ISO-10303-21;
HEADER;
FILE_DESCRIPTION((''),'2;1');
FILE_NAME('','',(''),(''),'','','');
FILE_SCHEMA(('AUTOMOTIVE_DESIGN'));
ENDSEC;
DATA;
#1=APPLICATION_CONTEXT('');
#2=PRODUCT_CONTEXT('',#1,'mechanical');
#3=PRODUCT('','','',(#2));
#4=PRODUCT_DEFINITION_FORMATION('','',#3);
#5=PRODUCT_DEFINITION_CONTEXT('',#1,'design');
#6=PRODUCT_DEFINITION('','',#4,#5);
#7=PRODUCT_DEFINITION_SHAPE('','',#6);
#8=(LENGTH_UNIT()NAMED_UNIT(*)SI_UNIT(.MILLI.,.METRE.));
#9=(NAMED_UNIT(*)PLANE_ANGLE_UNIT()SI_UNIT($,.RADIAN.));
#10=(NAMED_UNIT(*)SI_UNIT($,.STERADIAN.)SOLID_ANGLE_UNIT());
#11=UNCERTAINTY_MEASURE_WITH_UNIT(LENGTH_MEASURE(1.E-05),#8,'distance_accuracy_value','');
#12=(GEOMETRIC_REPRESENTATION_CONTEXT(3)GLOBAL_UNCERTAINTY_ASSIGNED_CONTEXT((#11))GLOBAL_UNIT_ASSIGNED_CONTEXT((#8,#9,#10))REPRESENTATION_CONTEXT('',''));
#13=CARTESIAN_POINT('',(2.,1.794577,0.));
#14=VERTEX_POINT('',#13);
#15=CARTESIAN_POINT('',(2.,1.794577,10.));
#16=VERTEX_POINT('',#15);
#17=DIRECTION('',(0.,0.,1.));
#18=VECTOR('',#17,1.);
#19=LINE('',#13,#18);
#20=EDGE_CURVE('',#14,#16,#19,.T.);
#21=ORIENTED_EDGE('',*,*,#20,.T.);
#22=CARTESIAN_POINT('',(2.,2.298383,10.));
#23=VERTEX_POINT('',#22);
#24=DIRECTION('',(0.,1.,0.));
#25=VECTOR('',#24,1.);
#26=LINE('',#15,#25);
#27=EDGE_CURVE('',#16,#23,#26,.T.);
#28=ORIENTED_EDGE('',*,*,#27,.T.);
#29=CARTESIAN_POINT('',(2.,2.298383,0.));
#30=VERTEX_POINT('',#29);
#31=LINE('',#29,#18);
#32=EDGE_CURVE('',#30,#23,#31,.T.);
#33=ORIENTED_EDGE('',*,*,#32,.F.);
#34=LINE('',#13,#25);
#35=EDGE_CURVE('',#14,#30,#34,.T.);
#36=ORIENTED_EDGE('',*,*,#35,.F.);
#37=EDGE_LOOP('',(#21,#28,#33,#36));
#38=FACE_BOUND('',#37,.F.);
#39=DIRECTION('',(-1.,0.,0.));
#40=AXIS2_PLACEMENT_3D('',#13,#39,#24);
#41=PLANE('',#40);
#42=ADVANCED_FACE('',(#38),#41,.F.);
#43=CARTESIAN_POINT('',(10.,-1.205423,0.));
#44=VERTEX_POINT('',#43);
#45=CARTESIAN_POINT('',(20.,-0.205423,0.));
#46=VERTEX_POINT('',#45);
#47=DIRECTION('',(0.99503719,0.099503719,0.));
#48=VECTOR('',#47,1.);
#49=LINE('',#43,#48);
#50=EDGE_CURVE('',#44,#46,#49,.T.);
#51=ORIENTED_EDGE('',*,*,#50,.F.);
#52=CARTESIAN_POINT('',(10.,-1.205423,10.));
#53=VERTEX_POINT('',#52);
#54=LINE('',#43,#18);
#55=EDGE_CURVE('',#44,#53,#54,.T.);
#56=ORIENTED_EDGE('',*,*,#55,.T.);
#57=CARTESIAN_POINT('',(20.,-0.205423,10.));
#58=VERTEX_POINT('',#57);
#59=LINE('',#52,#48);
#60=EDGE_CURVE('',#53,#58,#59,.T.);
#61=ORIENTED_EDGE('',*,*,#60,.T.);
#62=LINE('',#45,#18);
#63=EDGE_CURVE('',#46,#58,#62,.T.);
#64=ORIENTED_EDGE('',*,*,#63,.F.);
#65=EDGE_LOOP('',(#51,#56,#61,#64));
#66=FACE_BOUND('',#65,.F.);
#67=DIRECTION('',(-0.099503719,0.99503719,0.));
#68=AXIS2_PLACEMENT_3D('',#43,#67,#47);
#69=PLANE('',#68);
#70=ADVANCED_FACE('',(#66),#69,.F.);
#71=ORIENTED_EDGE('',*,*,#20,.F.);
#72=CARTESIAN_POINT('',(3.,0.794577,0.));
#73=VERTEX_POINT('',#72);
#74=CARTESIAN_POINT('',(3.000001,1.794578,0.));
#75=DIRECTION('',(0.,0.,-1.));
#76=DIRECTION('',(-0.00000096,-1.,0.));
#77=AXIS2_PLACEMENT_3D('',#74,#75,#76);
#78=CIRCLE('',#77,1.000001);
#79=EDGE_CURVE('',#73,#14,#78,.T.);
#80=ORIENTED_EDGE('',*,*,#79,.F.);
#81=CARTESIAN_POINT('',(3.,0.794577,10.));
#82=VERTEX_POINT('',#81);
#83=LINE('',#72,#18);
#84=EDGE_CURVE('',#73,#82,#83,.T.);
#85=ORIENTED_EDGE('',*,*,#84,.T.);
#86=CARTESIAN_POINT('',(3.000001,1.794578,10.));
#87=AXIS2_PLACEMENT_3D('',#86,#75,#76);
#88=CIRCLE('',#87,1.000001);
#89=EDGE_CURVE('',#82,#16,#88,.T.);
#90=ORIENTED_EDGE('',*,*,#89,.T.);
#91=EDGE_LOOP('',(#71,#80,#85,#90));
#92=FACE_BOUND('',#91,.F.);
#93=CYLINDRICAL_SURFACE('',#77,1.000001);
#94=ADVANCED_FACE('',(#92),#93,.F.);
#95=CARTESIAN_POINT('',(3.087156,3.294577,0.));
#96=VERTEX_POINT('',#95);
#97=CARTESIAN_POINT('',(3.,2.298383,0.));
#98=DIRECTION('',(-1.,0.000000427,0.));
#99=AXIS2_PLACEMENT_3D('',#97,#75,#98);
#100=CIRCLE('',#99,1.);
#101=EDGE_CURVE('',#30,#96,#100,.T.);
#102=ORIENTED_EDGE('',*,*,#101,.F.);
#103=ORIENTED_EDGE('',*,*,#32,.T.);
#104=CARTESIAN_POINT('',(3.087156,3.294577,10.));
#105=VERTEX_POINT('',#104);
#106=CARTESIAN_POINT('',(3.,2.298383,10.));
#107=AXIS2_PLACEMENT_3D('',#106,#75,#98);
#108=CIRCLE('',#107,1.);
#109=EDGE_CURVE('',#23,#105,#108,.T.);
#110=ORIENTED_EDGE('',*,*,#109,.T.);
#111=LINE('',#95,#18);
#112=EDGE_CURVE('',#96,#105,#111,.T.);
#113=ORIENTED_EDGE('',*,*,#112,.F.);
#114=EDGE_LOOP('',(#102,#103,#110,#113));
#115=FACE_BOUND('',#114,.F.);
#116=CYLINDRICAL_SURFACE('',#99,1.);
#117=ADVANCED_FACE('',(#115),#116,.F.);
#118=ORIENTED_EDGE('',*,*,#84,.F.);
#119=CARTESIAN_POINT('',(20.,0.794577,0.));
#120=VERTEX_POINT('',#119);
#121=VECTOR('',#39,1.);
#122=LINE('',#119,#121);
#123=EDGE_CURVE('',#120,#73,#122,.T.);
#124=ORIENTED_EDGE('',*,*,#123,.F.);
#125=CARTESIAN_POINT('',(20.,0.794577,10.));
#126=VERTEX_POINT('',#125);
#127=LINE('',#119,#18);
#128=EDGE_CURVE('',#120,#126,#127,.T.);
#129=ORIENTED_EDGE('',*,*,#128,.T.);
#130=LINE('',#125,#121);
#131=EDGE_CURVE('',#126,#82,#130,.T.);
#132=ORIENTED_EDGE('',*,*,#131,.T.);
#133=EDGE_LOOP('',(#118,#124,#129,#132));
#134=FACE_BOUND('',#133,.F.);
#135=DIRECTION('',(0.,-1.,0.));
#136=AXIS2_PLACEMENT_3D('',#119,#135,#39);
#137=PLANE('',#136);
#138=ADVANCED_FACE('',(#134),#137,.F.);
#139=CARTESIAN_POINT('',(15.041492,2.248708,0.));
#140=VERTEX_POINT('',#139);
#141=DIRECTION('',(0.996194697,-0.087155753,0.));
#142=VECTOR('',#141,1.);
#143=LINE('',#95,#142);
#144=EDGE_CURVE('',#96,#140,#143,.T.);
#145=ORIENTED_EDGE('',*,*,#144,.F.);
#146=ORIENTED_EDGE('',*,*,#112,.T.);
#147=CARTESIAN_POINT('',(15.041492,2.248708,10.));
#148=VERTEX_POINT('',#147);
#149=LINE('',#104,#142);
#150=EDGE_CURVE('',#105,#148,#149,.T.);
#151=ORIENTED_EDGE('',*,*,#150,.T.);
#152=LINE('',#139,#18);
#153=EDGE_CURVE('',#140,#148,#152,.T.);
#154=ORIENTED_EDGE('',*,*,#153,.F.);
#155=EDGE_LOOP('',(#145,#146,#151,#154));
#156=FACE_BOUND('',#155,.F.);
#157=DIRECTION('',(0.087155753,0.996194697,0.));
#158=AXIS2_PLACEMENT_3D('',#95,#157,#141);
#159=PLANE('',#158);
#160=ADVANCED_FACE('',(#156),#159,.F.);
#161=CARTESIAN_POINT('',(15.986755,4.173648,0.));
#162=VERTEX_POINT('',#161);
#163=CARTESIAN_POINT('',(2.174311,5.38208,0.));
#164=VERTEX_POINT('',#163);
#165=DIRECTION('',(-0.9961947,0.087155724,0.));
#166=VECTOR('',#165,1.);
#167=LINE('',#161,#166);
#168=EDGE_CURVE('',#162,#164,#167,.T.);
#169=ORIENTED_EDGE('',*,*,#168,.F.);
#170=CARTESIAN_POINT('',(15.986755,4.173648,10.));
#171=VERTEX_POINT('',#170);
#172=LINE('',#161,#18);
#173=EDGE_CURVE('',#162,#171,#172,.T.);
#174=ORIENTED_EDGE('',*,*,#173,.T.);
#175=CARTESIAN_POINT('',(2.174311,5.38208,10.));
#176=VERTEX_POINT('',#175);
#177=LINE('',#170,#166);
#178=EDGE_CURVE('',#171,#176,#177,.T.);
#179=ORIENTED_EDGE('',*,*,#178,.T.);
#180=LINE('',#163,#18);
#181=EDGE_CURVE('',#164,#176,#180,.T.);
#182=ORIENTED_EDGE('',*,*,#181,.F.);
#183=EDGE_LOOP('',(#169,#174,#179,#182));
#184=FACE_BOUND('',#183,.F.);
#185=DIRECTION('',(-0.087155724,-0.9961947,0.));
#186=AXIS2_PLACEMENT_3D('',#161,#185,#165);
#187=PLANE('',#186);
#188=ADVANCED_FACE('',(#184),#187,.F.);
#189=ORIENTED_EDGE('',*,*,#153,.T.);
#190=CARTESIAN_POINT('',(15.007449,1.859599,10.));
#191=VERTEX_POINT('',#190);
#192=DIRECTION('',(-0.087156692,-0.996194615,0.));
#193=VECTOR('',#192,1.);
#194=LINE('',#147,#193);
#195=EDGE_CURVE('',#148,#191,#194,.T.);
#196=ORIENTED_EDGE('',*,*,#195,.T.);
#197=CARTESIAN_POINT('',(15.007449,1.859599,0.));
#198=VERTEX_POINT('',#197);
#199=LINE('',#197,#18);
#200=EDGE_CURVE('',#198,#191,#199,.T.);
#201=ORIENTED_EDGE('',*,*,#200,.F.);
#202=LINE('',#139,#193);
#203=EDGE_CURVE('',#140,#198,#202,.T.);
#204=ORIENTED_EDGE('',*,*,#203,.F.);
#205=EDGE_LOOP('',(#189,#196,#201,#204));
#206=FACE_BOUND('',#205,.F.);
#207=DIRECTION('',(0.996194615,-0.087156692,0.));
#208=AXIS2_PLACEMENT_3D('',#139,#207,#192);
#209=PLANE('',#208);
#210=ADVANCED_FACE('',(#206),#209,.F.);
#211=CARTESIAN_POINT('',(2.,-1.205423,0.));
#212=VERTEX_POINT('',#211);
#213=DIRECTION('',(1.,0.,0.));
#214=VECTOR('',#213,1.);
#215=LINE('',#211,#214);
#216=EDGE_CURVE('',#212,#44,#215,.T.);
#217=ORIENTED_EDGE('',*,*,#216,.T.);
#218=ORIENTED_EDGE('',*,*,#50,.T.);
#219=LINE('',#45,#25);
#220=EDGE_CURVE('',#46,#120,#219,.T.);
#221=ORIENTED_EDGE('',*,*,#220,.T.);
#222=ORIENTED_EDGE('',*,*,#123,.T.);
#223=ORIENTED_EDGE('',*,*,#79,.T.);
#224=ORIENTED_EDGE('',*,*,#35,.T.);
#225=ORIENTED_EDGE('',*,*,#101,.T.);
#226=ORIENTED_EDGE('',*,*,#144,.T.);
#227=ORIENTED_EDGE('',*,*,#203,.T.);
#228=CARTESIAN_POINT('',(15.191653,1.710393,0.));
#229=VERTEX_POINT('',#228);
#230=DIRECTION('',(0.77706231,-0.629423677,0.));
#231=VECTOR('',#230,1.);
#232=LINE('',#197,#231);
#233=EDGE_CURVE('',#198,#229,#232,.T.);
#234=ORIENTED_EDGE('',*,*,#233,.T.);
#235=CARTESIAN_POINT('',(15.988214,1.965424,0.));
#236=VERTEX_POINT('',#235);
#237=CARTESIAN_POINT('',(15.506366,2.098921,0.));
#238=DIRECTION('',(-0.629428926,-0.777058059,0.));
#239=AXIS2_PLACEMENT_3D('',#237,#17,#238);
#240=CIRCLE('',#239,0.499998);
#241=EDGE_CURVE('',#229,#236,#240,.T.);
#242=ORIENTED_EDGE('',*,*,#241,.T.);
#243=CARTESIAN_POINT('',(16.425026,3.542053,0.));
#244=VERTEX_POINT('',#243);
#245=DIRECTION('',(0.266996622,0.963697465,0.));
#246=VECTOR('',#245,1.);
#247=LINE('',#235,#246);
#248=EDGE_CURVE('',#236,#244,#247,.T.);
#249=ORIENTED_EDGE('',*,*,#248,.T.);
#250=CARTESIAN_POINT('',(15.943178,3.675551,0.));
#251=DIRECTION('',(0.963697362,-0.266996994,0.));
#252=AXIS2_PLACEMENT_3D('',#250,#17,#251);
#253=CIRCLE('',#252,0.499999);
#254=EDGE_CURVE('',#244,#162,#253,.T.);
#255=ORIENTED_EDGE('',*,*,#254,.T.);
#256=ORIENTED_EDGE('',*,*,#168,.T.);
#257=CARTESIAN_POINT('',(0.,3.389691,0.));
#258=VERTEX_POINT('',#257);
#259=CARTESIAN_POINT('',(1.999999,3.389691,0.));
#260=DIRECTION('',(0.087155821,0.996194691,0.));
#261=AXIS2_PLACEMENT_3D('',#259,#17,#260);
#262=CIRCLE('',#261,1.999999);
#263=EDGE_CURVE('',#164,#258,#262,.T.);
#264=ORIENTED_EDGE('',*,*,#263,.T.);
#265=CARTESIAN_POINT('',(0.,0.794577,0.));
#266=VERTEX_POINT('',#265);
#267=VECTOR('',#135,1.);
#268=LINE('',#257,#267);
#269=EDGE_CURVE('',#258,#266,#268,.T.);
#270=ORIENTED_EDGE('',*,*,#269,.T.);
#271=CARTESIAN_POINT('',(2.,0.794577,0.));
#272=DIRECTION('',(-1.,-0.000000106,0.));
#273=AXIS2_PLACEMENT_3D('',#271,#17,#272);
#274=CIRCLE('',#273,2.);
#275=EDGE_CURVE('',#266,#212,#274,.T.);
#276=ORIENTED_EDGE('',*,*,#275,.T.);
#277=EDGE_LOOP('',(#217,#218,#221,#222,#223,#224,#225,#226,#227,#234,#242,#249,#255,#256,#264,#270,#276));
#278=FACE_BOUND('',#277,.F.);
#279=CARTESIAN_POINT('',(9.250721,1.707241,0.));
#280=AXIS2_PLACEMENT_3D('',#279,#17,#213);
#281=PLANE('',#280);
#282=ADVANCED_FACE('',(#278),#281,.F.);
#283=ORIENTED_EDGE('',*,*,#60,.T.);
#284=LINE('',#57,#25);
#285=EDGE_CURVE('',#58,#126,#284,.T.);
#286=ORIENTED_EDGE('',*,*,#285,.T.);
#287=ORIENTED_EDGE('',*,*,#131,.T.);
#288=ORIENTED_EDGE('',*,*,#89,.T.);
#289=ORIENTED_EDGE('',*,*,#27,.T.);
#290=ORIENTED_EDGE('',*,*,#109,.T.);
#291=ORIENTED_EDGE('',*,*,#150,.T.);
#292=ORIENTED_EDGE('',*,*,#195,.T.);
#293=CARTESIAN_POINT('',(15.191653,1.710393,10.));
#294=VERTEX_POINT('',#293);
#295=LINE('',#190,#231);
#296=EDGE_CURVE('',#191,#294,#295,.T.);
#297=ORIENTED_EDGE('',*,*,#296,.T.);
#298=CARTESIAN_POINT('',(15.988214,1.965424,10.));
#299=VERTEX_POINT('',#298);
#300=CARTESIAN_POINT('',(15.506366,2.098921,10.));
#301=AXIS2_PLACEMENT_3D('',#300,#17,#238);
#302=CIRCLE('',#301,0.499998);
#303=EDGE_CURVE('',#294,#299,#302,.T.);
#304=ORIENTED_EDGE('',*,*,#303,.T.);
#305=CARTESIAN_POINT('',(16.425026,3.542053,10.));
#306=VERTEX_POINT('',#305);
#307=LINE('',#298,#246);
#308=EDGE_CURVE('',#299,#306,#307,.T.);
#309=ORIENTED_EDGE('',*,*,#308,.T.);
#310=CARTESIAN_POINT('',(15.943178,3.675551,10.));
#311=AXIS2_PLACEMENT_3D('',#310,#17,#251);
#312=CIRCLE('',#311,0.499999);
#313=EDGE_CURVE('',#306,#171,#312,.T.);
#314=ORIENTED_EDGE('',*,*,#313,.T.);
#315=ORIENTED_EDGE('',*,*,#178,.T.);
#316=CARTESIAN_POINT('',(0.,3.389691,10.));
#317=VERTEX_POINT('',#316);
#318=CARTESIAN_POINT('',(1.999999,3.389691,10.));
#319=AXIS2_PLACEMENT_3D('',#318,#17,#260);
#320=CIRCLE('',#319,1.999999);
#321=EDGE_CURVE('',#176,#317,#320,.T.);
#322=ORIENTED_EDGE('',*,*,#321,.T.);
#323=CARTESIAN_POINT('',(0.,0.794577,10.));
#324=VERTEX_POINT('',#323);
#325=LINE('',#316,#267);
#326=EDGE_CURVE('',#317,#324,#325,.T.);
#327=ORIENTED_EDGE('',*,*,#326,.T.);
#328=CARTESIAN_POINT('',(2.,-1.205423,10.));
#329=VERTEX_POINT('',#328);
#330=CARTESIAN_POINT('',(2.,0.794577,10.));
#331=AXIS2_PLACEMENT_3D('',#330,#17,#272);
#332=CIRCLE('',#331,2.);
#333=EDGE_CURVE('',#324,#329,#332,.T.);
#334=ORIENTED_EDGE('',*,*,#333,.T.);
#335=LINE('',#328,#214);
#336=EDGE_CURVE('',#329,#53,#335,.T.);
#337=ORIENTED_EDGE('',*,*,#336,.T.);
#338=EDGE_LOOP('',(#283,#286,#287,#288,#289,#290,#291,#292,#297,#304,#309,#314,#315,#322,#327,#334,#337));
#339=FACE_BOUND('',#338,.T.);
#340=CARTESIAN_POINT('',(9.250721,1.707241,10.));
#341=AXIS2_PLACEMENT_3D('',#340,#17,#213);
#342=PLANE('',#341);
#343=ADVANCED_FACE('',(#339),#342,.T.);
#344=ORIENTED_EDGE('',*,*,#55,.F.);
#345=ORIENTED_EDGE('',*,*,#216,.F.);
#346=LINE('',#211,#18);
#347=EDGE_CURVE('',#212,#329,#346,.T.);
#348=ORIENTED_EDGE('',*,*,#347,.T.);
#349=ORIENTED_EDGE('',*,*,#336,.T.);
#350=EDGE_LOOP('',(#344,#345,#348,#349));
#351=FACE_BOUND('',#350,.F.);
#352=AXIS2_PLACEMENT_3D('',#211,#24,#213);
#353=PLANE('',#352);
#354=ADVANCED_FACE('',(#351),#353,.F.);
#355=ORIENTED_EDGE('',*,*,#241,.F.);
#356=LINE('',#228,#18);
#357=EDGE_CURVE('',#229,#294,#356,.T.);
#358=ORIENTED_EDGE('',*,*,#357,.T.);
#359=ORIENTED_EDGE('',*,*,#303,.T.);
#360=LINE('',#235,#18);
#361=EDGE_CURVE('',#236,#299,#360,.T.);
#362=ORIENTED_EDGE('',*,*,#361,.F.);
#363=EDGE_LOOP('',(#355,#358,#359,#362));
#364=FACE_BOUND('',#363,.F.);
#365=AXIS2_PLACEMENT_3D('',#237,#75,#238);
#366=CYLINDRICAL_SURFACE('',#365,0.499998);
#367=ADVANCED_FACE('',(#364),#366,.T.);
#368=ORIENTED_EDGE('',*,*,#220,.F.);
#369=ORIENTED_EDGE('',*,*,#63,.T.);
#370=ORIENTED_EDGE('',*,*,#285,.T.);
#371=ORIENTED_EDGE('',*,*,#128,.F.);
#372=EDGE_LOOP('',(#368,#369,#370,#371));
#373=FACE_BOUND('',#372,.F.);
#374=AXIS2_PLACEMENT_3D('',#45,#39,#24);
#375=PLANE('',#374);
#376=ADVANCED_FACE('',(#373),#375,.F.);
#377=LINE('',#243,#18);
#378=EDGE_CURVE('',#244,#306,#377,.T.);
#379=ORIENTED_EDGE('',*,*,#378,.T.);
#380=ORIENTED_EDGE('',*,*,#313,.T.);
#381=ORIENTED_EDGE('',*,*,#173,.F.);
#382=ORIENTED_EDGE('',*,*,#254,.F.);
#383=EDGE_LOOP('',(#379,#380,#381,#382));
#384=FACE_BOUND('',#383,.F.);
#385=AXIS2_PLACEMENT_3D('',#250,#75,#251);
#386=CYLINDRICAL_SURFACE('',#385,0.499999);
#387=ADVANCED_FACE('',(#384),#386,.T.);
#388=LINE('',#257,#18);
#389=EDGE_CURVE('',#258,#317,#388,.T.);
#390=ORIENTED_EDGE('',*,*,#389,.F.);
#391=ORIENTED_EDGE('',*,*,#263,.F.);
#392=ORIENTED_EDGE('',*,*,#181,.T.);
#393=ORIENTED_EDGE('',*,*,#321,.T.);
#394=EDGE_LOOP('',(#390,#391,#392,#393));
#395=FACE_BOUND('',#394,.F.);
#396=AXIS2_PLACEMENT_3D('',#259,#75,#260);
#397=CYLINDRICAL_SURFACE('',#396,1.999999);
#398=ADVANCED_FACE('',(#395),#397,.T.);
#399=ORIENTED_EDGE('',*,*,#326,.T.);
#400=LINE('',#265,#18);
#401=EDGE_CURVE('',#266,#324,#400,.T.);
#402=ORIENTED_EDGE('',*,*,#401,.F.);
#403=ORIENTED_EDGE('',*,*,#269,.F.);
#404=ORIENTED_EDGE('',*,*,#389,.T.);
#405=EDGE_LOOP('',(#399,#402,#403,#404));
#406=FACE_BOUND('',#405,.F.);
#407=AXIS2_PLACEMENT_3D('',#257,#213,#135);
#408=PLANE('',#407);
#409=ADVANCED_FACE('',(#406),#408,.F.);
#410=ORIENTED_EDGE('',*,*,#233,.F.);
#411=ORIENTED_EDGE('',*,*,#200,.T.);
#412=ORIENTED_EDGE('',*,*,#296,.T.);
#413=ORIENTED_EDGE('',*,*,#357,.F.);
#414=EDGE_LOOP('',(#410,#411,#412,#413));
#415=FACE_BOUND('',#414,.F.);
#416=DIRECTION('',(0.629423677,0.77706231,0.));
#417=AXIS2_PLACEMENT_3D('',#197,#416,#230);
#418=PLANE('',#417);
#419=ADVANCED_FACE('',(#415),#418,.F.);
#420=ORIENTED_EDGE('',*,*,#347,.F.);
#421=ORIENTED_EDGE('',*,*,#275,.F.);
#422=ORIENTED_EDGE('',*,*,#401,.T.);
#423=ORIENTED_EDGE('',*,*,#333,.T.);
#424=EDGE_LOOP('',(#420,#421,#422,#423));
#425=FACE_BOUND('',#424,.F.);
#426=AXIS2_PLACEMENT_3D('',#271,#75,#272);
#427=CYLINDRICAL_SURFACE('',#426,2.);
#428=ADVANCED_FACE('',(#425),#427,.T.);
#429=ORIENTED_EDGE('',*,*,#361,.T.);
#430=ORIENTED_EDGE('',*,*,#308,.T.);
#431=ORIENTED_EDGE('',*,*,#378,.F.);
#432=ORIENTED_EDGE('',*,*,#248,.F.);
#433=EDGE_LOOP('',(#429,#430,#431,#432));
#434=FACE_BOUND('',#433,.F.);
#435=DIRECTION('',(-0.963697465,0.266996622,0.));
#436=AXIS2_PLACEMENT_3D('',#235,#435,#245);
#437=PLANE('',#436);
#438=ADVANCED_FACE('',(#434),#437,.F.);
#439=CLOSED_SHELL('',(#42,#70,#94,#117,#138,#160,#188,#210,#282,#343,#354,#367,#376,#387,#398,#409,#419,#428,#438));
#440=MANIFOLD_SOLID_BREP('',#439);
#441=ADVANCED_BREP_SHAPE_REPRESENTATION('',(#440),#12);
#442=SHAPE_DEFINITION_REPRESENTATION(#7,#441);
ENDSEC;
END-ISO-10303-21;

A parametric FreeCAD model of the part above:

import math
import FreeCAD as App
import Part
import Sketcher
Q = App.Units.Quantity

doc = App.newDocument("Part")
body = doc.addObject("PartDesign::Body", "Body")

# Sketch on XY plane
sketch1 = body.newObject("Sketcher::SketchObject", "Sketch")
sketch1.AttachmentSupport = (doc.getObject("XY_Plane"), [""])
sketch1.MapMode = "FlatFace"
sketch1.addGeometry(Part.LineSegment(App.Vector(20, -0.21, 0), App.Vector(20, 0.79, 0)), False)
sketch1.addGeometry(Part.LineSegment(App.Vector(20, 0.79, 0), App.Vector(3, 0.79, 0)), False)
sketch1.addGeometry(Part.ArcOfCircle(Part.Circle(App.Vector(3, 1.79, 0), App.Vector(0, 0, 1), 1), math.radians(-180), math.radians(-90)), False)
sketch1.addGeometry(Part.LineSegment(App.Vector(2, 1.79, 0), App.Vector(2, 2.3, 0)), False)
sketch1.addGeometry(Part.ArcOfCircle(Part.Circle(App.Vector(3, 2.3, 0), App.Vector(0, 0, 1), 1), math.radians(85), math.radians(180)), False)
sketch1.addGeometry(Part.LineSegment(App.Vector(3.09, 3.29, 0), App.Vector(15.04, 2.25, 0)), False)
sketch1.addGeometry(Part.LineSegment(App.Vector(15.04, 2.25, 0), App.Vector(15.01, 1.86, 0)), False)
sketch1.addGeometry(Part.LineSegment(App.Vector(15.01, 1.86, 0), App.Vector(15.19, 1.71, 0)), False)
sketch1.addGeometry(Part.ArcOfCircle(Part.Circle(App.Vector(15.51, 2.1, 0), App.Vector(0, 0, 1), 0.5), math.radians(-129), math.radians(-15)), False)
sketch1.addGeometry(Part.LineSegment(App.Vector(15.99, 1.97, 0), App.Vector(16.43, 3.54, 0)), False)
sketch1.addGeometry(Part.ArcOfCircle(Part.Circle(App.Vector(15.94, 3.68, 0), App.Vector(0, 0, 1), 0.5), math.radians(-15), math.radians(85)), False)
sketch1.addGeometry(Part.LineSegment(App.Vector(15.99, 4.17, 0), App.Vector(2.17, 5.38, 0)), False)
sketch1.addGeometry(Part.ArcOfCircle(Part.Circle(App.Vector(2, 3.39, 0), App.Vector(0, 0, 1), 2), math.radians(85), math.radians(180)), False)
sketch1.addGeometry(Part.LineSegment(App.Vector(0, 3.39, 0), App.Vector(0, 0.79, 0)), False)
sketch1.addGeometry(Part.ArcOfCircle(Part.Circle(App.Vector(2, 0.79, 0), App.Vector(0, 0, 1), 2), math.radians(-180), math.radians(-90)), False)
sketch1.addGeometry(Part.LineSegment(App.Vector(2, -1.21, 0), App.Vector(10, -1.21, 0)), False)
sketch1.addGeometry(Part.LineSegment(App.Vector(10, -1.21, 0), App.Vector(20, -0.21, 0)), False)
sketch1.addConstraint(Sketcher.Constraint("Coincident", 0, 2, 1, 1))
sketch1.addConstraint(Sketcher.Constraint("Tangent", 1, 2, 2, 2))
sketch1.addConstraint(Sketcher.Constraint("Tangent", 2, 1, 3, 1))
sketch1.addConstraint(Sketcher.Constraint("Tangent", 3, 2, 4, 2))
sketch1.addConstraint(Sketcher.Constraint("Tangent", 4, 1, 5, 1))
sketch1.addConstraint(Sketcher.Constraint("Coincident", 5, 2, 6, 1))
sketch1.addConstraint(Sketcher.Constraint("Coincident", 6, 2, 7, 1))
sketch1.addConstraint(Sketcher.Constraint("Coincident", 7, 2, 8, 1))
sketch1.addConstraint(Sketcher.Constraint("Coincident", 8, 2, 9, 1))
sketch1.addConstraint(Sketcher.Constraint("Tangent", 9, 2, 10, 1))
sketch1.addConstraint(Sketcher.Constraint("Tangent", 10, 2, 11, 1))
sketch1.addConstraint(Sketcher.Constraint("Tangent", 11, 2, 12, 1))
sketch1.addConstraint(Sketcher.Constraint("Tangent", 12, 2, 13, 1))
sketch1.addConstraint(Sketcher.Constraint("Tangent", 13, 2, 14, 1))
sketch1.addConstraint(Sketcher.Constraint("Tangent", 14, 2, 15, 1))
sketch1.addConstraint(Sketcher.Constraint("Coincident", 15, 2, 16, 1))
sketch1.addConstraint(Sketcher.Constraint("Coincident", 16, 2, 0, 1))
sketch1.addConstraint(Sketcher.Constraint("Vertical", 0))
sketch1.addConstraint(Sketcher.Constraint("Horizontal", 1))
sketch1.addConstraint(Sketcher.Constraint("Vertical", 3))
sketch1.addConstraint(Sketcher.Constraint("Vertical", 13))
sketch1.addConstraint(Sketcher.Constraint("Horizontal", 15))
sketch1.addConstraint(Sketcher.Constraint("Equal", 2, 4))
sketch1.addConstraint(Sketcher.Constraint("Equal", 8, 10))
sketch1.addConstraint(Sketcher.Constraint("Equal", 12, 14))
sketch1.addConstraint(Sketcher.Constraint("PointOnObject", 12, 2, -2))
sketch1.addConstraint(Sketcher.Constraint("Perpendicular", 5, 6))
sketch1.addConstraint(Sketcher.Constraint("Perpendicular", 6, 11))
sketch1.addConstraint(Sketcher.Constraint("Horizontal", 14, 3, 0, 2))
sketch1.addConstraint(Sketcher.Constraint("Vertical", 14, 3, 2, 1))
sketch1.addConstraint(Sketcher.Constraint("Radius", 2, 1.000001))
sketch1.addConstraint(Sketcher.Constraint("Radius", 12, 1.999999))
sketch1.addConstraint(Sketcher.Constraint("Radius", 8, 0.499998))
sketch1.addConstraint(Sketcher.Constraint("DistanceX", 1, 2, 1, 1, 17.0))
sketch1.addConstraint(Sketcher.Constraint("DistanceX", 15, 1, 15, 2, 8.0))
sketch1.addConstraint(Sketcher.Constraint("DistanceY", 0, 1, 0, 2, 1.0))
sketch1.addConstraint(Sketcher.Constraint("Angle", 5, Q("-5.000001 deg")))
sketch1.addConstraint(Sketcher.Constraint("Distance", 5, 12.0))
sketch1.addConstraint(Sketcher.Constraint("DistanceY", 2, 3, 4, 1, 1.499999))
sketch1.addConstraint(Sketcher.Constraint("DistanceY", -1, 1, 6, 2, 1.859599))
sketch1.addConstraint(Sketcher.Constraint("DistanceY", 9, 2, 10, 3, 0.133498))
sketch1.addConstraint(Sketcher.Constraint("Distance", 7, 0.237052))
sketch1.addConstraint(Sketcher.Constraint("Distance", 9, 1.636021))
sketch1.addConstraint(Sketcher.Constraint("DistanceY", 13, 2, 13, 1, 2.595114))
sketch1.addConstraint(Sketcher.Constraint("DistanceY", -1, 1, 8, 3, 2.098921))
sketch1.addConstraint(Sketcher.Constraint("DistanceX", -1, 1, 10, 3, 15.943178))
sketch1.addConstraint(Sketcher.Constraint("DistanceY", -1, 1, 10, 3, 3.675551))
pad1 = body.newObject("PartDesign::Pad", "Pad")
pad1.Profile = sketch1
pad1.Length = 10

doc.recompute()
